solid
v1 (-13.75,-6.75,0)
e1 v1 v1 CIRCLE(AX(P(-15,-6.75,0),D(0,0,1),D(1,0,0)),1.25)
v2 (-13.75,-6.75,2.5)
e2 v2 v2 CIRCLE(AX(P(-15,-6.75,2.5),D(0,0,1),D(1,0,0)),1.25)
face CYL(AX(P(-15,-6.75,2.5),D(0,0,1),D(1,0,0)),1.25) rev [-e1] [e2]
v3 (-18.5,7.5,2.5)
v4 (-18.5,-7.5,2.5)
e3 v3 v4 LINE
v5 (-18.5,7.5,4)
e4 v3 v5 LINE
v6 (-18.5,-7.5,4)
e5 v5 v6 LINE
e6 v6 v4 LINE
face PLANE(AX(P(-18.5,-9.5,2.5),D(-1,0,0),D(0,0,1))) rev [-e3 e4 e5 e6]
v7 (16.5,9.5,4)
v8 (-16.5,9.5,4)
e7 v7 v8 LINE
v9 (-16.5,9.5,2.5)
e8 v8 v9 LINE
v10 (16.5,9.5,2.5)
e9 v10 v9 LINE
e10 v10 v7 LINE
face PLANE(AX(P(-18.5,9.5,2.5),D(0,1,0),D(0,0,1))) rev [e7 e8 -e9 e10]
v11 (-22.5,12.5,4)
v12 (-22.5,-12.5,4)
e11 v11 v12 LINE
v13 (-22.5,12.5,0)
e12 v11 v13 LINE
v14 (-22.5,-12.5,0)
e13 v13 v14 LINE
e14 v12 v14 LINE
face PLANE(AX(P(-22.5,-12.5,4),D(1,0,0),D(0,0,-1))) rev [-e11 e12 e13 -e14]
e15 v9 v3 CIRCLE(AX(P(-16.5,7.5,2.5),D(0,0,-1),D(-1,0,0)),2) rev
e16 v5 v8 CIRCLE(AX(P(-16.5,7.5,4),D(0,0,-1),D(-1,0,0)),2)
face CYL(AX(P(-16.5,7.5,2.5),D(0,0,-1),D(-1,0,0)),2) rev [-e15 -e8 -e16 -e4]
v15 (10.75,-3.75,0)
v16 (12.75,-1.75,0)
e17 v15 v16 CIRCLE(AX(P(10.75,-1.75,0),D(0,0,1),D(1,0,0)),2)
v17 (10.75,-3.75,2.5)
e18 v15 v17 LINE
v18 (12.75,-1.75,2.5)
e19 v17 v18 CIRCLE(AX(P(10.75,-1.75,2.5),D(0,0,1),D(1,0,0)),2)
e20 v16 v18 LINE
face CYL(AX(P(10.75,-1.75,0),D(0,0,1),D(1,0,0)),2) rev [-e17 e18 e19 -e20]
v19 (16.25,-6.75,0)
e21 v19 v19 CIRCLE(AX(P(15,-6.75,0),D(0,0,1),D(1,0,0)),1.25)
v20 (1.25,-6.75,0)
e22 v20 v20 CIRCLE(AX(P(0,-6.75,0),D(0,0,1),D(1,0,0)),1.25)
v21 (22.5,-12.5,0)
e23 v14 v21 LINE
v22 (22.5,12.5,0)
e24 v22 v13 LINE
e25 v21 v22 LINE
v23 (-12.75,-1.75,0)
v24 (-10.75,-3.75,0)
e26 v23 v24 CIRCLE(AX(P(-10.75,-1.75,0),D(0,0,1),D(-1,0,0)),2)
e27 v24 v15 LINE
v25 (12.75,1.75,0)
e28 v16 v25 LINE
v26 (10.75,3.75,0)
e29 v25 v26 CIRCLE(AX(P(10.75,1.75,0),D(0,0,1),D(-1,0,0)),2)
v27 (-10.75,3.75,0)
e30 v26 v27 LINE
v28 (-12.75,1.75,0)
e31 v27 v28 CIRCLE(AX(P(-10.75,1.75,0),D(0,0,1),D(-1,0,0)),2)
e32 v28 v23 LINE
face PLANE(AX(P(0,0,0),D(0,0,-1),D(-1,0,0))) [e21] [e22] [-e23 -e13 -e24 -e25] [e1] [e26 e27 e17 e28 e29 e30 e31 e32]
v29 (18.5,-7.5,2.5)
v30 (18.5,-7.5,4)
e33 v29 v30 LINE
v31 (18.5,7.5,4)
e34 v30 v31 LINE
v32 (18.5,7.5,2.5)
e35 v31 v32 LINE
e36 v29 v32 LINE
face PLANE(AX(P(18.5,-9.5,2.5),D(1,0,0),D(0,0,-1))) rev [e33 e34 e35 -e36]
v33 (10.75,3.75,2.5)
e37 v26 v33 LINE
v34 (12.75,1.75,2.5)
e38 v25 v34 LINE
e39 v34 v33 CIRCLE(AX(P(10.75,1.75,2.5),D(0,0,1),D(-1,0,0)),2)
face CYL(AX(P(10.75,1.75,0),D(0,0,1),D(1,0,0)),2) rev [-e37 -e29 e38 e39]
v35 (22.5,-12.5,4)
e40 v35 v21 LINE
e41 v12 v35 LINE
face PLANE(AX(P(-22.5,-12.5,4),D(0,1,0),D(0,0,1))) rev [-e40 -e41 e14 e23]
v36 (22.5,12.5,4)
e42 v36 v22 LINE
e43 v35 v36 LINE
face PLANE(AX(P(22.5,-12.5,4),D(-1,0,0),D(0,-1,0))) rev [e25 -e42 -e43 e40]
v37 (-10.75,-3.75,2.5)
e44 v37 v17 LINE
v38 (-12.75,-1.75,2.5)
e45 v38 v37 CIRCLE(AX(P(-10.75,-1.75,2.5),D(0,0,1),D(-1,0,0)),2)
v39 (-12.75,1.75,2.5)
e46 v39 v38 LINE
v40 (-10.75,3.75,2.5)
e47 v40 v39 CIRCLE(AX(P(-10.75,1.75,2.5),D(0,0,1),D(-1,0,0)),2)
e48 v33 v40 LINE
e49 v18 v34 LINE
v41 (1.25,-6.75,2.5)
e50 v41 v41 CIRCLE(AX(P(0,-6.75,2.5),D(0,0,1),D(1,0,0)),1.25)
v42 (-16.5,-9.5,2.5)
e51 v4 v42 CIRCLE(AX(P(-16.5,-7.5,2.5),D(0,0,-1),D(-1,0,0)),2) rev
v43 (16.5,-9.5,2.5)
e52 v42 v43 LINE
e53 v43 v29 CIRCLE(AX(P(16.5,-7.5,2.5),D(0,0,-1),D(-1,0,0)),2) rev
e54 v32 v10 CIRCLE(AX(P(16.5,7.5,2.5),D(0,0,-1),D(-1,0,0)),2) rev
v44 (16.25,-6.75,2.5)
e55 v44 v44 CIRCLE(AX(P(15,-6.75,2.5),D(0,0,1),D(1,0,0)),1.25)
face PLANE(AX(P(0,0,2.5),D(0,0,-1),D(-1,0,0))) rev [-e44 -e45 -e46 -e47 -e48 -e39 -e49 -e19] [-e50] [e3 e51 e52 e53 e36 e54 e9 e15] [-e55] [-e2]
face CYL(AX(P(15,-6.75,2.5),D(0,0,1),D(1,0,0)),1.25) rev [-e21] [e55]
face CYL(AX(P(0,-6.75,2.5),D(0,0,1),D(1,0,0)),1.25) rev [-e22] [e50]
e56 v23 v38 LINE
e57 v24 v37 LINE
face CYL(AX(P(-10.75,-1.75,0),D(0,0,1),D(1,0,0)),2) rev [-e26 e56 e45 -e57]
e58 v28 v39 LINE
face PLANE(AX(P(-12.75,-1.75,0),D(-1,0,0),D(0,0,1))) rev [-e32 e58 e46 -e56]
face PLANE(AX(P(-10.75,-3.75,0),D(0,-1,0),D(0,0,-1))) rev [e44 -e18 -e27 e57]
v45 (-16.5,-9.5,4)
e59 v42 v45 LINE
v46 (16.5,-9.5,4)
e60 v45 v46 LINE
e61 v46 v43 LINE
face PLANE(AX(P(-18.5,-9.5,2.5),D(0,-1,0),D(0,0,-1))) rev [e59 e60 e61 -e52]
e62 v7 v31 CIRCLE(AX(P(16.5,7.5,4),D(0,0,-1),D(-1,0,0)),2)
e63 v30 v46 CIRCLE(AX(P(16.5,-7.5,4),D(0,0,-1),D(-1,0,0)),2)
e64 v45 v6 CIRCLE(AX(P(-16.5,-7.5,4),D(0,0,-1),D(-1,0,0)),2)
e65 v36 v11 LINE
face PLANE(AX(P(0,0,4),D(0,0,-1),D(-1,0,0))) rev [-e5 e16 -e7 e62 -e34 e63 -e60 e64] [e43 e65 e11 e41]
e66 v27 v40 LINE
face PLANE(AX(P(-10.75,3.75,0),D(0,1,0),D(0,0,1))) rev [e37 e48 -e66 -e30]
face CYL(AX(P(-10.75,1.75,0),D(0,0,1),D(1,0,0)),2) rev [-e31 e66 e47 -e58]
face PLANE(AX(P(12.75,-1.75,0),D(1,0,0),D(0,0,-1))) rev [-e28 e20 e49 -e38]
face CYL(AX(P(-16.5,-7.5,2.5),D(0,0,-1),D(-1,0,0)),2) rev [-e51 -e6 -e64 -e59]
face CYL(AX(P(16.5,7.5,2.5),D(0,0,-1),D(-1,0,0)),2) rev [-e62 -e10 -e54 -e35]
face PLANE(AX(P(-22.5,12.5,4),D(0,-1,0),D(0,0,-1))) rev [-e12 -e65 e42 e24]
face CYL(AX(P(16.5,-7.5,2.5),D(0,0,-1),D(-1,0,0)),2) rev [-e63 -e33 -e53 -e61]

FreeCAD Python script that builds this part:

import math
import FreeCAD as App
import Part
import Sketcher

V = App.Vector


def edges_at(feature, points):
    """Names of the edges that pass closest to the given points."""
    edges = feature.Shape.Edges
    near = lambda p: min(range(len(edges)), key=lambda i: edges[i].distToShape(Part.Vertex(*p))[0])
    return sorted({f"Edge{near(p) + 1}" for p in points})

doc = App.newDocument("Part")
body = doc.addObject("PartDesign::Body", "Body")

# Sketch on XY plane
sketch1 = body.newObject("Sketcher::SketchObject", "Sketch")
sketch1.AttachmentSupport = (doc.getObject("XY_Plane"), [""])
sketch1.MapMode = "FlatFace"
sketch1.addGeometry([
    Part.LineSegment(V(-22, 12, 0), V(-22, -12, 0)),
    Part.LineSegment(V(-22, -12, 0), V(22, -12, 0)),
    Part.LineSegment(V(22, -12, 0), V(22, 12, 0)),
    Part.LineSegment(V(22, 12, 0), V(-22, 12, 0)),
], False)
sketch1.addConstraint([
    Sketcher.Constraint("Coincident", 0, 2, 1, 1),
    Sketcher.Constraint("Coincident", 1, 2, 2, 1),
    Sketcher.Constraint("Coincident", 2, 2, 3, 1),
    Sketcher.Constraint("Coincident", 3, 2, 0, 1),
    Sketcher.Constraint("Vertical", 0),
    Sketcher.Constraint("Horizontal", 1),
    Sketcher.Constraint("Vertical", 2),
    Sketcher.Constraint("Horizontal", 3),
    Sketcher.Constraint("Symmetric", 0, 2, 2, 2, -1, 1),
    Sketcher.Constraint("DistanceX", 1, 1, 1, 2, 45.0),
    Sketcher.Constraint("DistanceY", 0, 2, 0, 1, 25.0),
])
pad1 = body.newObject("PartDesign::Pad", "Pad")
pad1.Profile = sketch1
pad1.Length = 4

# Sketch on XY plane
sketch2 = body.newObject("Sketcher::SketchObject", "Sketch001")
sketch2.AttachmentSupport = (doc.getObject("XY_Plane"), [""])
sketch2.MapMode = "FlatFace"
sketch2.AttachmentOffset = App.Placement(V(0, 0, 4), App.Rotation())
sketch2.addGeometry([
    Part.LineSegment(V(-18, 10, 0), V(-18, -10, 0)),
    Part.LineSegment(V(-18, -10, 0), V(18, -10, 0)),
    Part.LineSegment(V(18, -10, 0), V(18, 10, 0)),
    Part.LineSegment(V(18, 10, 0), V(-18, 10, 0)),
], False)
sketch2.addConstraint([
    Sketcher.Constraint("Coincident", 0, 2, 1, 1),
    Sketcher.Constraint("Coincident", 1, 2, 2, 1),
    Sketcher.Constraint("Coincident", 2, 2, 3, 1),
    Sketcher.Constraint("Coincident", 3, 2, 0, 1),
    Sketcher.Constraint("Vertical", 0),
    Sketcher.Constraint("Horizontal", 1),
    Sketcher.Constraint("Vertical", 2),
    Sketcher.Constraint("Horizontal", 3),
    Sketcher.Constraint("Symmetric", 0, 2, 2, 2, -1, 1),
    Sketcher.Constraint("DistanceX", 1, 1, 1, 2, 37.0),
    Sketcher.Constraint("DistanceY", 0, 2, 0, 1, 19.0),
])
pocket1 = body.newObject("PartDesign::Pocket", "Pocket")
pocket1.Profile = sketch2
pocket1.Length = 1.5
doc.recompute()

fillet = body.newObject("PartDesign::Fillet", "Fillet")
fillet.Base = (pocket1, edges_at(pocket1, [
    (18.5, 9.5, 3.25),
    (18.5, -9.5, 3.25),
    (-18.5, -9.5, 3.25),
    (-18.5, 9.5, 3.25),
]))
fillet.Radius = 2

# Sketch on XY plane
sketch3 = body.newObject("Sketcher::SketchObject", "Sketch002")
sketch3.AttachmentSupport = (doc.getObject("XY_Plane"), [""])
sketch3.MapMode = "FlatFace"
sketch3.AttachmentOffset = App.Placement(V(0, 0, 2.5), App.Rotation())
sketch3.addGeometry([
    Part.LineSegment(V(-10.8, -3.8, 0), V(10.8, -3.8, 0)),  # 0
    Part.ArcOfCircle(Part.Circle(V(10.7, -1.7, 0), V(0, 0, 1), 2), math.radians(-90), math.radians(0)),  # 1
    Part.LineSegment(V(12.8, -1.8, 0), V(12.8, 1.8, 0)),  # 2
    Part.ArcOfCircle(Part.Circle(V(10.7, 1.7, 0), V(0, 0, 1), 2), math.radians(0), math.radians(90)),  # 3
    Part.LineSegment(V(10.8, 3.8, 0), V(-10.8, 3.8, 0)),  # 4
    Part.ArcOfCircle(Part.Circle(V(-10.7, 1.7, 0), V(0, 0, 1), 2), math.radians(90), math.radians(180)),  # 5
    Part.LineSegment(V(-12.8, 1.8, 0), V(-12.8, -1.8, 0)),  # 6
    Part.ArcOfCircle(Part.Circle(V(-10.7, -1.7, 0), V(0, 0, 1), 2), math.radians(-180), math.radians(-90)),  # 7
], False)
sketch3.addConstraint([
    Sketcher.Constraint("Tangent", 0, 2, 1, 1),
    Sketcher.Constraint("Tangent", 1, 2, 2, 1),
    Sketcher.Constraint("Tangent", 2, 2, 3, 1),
    Sketcher.Constraint("Tangent", 3, 2, 4, 1),
    Sketcher.Constraint("Tangent", 4, 2, 5, 1),
    Sketcher.Constraint("Tangent", 5, 2, 6, 1),
    Sketcher.Constraint("Tangent", 6, 2, 7, 1),
    Sketcher.Constraint("Tangent", 7, 2, 0, 1),
    Sketcher.Constraint("Horizontal", 0),
    Sketcher.Constraint("Vertical", 2),
    Sketcher.Constraint("Horizontal", 4),
    Sketcher.Constraint("Vertical", 6),
    Sketcher.Constraint("Equal", 1, 3),
    Sketcher.Constraint("Equal", 3, 5),
    Sketcher.Constraint("Equal", 5, 7),
    Sketcher.Constraint("Symmetric", 1, 3, 5, 3, -1, 1),
    Sketcher.Constraint("Radius", 1, 2.0),
    Sketcher.Constraint("DistanceX", 0, 1, 0, 2, 21.5),
    Sketcher.Constraint("DistanceY", 2, 1, 2, 2, 3.5),
])
pocket2 = body.newObject("PartDesign::Pocket", "Pocket001")
pocket2.Profile = sketch3
pocket2.Type = "ThroughAll"

# Sketch on XY plane
sketch4 = body.newObject("Sketcher::SketchObject", "Sketch003")
sketch4.AttachmentSupport = (doc.getObject("XY_Plane"), [""])
sketch4.MapMode = "FlatFace"
sketch4.AttachmentOffset = App.Placement(V(0, 0, 2.5), App.Rotation())
sketch4.addGeometry([
    Part.Circle(V(-15, -6.8, 0), V(0, 0, 1), 1.2),
    Part.Circle(V(0, -6.8, 0), V(0, 0, 1), 1.2),
    Part.Circle(V(15, -6.8, 0), V(0, 0, 1), 1.2),
], False)
sketch4.addConstraint([
    Sketcher.Constraint("Equal", 0, 1),
    Sketcher.Constraint("Equal", 1, 2),
    Sketcher.Constraint("Symmetric", 0, 3, 2, 3, -2),
    Sketcher.Constraint("PointOnObject", 1, 3, -2),
    Sketcher.Constraint("Horizontal", 0, 3, 1, 3),
    Sketcher.Constraint("Diameter", 0, 2.5),
    Sketcher.Constraint("DistanceX", 0, 3, -1, 1, 15.0),
    Sketcher.Constraint("DistanceY", 0, 3, -1, 1, 6.75),
])
doc.recompute()
hole = body.newObject("PartDesign::Hole", "Hole")
hole.Profile = sketch4
hole.ThreadType = "None"
hole.Diameter = 2.5
hole.DepthType = "ThroughAll"

doc.recompute()
